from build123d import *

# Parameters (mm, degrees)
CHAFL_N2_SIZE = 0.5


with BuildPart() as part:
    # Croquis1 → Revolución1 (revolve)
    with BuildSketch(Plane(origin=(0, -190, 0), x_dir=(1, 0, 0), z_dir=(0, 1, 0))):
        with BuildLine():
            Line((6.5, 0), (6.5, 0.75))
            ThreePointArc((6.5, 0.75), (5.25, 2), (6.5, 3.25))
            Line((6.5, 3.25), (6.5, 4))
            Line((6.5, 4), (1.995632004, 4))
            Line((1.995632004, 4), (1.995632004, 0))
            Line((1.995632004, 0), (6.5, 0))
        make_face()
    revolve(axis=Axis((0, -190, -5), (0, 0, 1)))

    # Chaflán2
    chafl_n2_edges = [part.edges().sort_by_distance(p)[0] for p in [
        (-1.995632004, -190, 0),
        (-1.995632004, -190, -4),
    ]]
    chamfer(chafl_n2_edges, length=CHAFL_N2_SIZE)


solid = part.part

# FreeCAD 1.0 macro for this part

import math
import FreeCAD as App
import Part
import Sketcher

V = App.Vector
Q = App.Units.Quantity


def edges_at(feature, points):
    """Names of the edges that pass closest to the given points."""
    edges = feature.Shape.Edges
    near = lambda p: min(range(len(edges)), key=lambda i: edges[i].distToShape(Part.Vertex(*p))[0])
    return sorted({f"Edge{near(p) + 1}" for p in points})

doc = App.newDocument("Part")
body = doc.addObject("PartDesign::Body", "Body")

sketch1 = doc.addObject("Sketcher::SketchObject", "Sketch")
body.addObject(sketch1)
sketch1.AttachmentSupport = (doc.XZ_Plane, [""])
sketch1.MapMode = "FlatFace"
sketch1.AttachmentOffset = App.Placement(V(0, 0, 190), App.Rotation())
sketch1.addGeometry([
    Part.LineSegment(V(6.5, 0, 0), V(6.5, -0.8, 0)),
    Part.ArcOfCircle(Part.Circle(V(6.5, -2, 0), V(0, 0, 1), 1.2), math.radians(90), math.radians(270)),
    Part.LineSegment(V(6.5, -3.2, 0), V(6.5, -4, 0)),
    Part.LineSegment(V(6.5, -4, 0), V(2, -4, 0)),
    Part.LineSegment(V(2, -4, 0), V(2, 0, 0)),
    Part.LineSegment(V(2, 0, 0), V(6.5, 0, 0)),
], False)
sketch1.addConstraint([
    Sketcher.Constraint("Coincident", 0, 2, 1, 1),
    Sketcher.Constraint("Coincident", 1, 2, 2, 1),
    Sketcher.Constraint("Coincident", 2, 2, 3, 1),
    Sketcher.Constraint("Coincident", 3, 2, 4, 1),
    Sketcher.Constraint("Coincident", 4, 2, 5, 1),
    Sketcher.Constraint("Coincident", 5, 2, 0, 1),
    Sketcher.Constraint("Vertical", 0),
    Sketcher.Constraint("Vertical", 2),
    Sketcher.Constraint("Horizontal", 3),
    Sketcher.Constraint("Vertical", 4),
    Sketcher.Constraint("Horizontal", 5),
    Sketcher.Constraint("PointOnObject", 4, 2, -1),
    Sketcher.Constraint("Vertical", 1, 3, 0, 2),
    Sketcher.Constraint("Vertical", 0, 2, 1, 2),
    Sketcher.Constraint("Equal", 0, 2),
    Sketcher.Constraint("DistanceY", 4, 1, 4, 2, Q("4 mm")),
    Sketcher.Constraint("Radius", 1, Q("1.25 mm")),
    Sketcher.Constraint("DistanceX", -1, 1, 1, 3, Q("6.5 mm")),
    Sketcher.Constraint("DistanceX", 3, 2, 3, 1, Q("4.504368 mm")),
])
revolution = doc.addObject("PartDesign::Revolution", "Revolution")
body.addObject(revolution)
revolution.Profile = sketch1
revolution.ReferenceAxis = (sketch1, ["V_Axis"])
revolution.Angle = 360
doc.recompute()

chamfer = doc.addObject("PartDesign::Chamfer", "Chamfer")
body.addObject(chamfer)
chamfer.Base = (revolution, edges_at(revolution, [(-1.996, -190, 0), (-1.996, -190, -4)]))
chamfer.Size = 0.5

doc.recompute()
